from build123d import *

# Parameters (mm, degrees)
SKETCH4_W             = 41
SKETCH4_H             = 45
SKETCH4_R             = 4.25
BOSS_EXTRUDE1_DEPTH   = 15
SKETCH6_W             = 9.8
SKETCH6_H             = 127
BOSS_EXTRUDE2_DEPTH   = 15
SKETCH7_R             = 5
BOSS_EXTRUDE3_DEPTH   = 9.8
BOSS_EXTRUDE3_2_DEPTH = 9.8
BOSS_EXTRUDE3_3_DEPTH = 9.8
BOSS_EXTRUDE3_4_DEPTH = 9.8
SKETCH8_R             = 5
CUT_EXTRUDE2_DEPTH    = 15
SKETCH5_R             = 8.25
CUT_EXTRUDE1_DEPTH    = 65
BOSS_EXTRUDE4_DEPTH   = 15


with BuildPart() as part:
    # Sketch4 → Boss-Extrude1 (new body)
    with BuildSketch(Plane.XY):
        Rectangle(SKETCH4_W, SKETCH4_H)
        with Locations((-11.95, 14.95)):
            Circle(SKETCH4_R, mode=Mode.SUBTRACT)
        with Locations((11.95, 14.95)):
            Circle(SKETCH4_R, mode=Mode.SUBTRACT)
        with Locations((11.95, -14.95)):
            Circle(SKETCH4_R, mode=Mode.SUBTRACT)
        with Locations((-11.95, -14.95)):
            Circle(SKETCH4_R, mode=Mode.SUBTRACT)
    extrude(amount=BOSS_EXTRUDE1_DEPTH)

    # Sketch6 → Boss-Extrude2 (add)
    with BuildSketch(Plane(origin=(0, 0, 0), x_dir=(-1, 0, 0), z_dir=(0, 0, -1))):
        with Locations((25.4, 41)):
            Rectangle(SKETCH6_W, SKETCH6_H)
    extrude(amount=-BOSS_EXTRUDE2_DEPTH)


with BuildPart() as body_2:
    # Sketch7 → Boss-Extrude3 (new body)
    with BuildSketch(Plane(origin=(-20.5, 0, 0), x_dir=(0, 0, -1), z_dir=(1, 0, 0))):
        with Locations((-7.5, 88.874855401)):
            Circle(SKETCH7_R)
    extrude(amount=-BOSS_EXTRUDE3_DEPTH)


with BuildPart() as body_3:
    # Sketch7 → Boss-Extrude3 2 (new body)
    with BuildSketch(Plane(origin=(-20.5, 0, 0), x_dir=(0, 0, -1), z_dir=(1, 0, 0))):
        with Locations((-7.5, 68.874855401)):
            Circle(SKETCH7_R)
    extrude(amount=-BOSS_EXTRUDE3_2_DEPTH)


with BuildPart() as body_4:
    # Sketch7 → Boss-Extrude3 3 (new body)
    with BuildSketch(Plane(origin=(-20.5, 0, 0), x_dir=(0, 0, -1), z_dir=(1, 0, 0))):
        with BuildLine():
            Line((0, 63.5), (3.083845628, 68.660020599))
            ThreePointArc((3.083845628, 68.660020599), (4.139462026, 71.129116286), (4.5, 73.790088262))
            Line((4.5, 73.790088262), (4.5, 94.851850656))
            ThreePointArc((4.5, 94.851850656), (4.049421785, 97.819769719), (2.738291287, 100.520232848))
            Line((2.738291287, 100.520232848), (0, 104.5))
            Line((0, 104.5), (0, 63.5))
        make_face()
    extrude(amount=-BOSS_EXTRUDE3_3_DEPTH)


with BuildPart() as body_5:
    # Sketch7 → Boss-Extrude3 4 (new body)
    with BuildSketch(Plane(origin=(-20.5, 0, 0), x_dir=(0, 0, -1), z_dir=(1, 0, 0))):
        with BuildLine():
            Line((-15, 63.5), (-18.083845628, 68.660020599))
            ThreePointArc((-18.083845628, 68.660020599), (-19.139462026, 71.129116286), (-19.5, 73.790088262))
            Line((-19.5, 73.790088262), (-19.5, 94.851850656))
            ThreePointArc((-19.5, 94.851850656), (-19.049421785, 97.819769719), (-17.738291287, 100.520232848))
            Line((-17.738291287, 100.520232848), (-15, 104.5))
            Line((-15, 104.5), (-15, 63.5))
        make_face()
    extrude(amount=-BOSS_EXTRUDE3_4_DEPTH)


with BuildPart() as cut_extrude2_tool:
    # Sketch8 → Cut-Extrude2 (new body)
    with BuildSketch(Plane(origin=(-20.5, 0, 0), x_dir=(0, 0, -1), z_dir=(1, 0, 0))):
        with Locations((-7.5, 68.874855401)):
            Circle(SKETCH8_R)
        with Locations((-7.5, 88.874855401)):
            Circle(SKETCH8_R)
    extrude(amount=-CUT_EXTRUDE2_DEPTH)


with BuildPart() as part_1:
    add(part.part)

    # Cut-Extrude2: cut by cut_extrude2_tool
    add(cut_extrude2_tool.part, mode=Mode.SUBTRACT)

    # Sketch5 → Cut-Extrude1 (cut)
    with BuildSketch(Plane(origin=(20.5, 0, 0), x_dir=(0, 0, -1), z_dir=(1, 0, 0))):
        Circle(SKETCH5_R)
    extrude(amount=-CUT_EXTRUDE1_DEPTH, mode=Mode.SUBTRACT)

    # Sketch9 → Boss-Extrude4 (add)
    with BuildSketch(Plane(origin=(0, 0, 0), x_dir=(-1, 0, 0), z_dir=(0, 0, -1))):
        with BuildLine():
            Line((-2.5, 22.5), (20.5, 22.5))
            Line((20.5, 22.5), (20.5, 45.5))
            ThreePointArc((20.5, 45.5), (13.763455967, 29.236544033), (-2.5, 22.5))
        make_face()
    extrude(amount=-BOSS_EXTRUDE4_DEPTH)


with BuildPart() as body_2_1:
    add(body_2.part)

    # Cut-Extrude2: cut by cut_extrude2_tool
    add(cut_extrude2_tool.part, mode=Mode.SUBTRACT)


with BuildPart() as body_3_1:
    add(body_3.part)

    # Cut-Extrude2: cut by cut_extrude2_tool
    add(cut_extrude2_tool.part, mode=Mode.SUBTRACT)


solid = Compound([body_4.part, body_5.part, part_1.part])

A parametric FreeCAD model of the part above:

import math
import FreeCAD as App
import Part
import Sketcher

V = App.Vector


def add_polygon(sketch, points):
    """Adds a closed chain of lines whose ends are joined by coincident constraints."""
    first, n = sketch.GeometryCount, len(points)
    for a, b in zip(points, points[1:] + points[:1]):
        sketch.addGeometry(Part.LineSegment(App.Vector(*a, 0), App.Vector(*b, 0)), False)
    for i in range(n):
        sketch.addConstraint(Sketcher.Constraint("Coincident", first + i, 2, first + (i + 1) % n, 1))

doc = App.newDocument("Part")
body = doc.addObject("PartDesign::Body", "Body")

# Sketch on XY plane
sketch1 = doc.addObject("Sketcher::SketchObject", "Sketch")
body.addObject(sketch1)
sketch1.AttachmentSupport = (doc.XY_Plane, [""])
sketch1.MapMode = "FlatFace"
add_polygon(sketch1, [(-20.5, 22.5), (-20.5, -22.5), (20.5, -22.5), (20.5, 22.5)])  # lines 0-3
sketch1.addGeometry(Part.Circle(V(-11.9, -14.9, 0), V(0, 0, 1), 4.2), False)  # 4
sketch1.addGeometry(Part.Circle(V(11.9, -14.9, 0), V(0, 0, 1), 4.2), False)  # 5
sketch1.addGeometry(Part.Circle(V(-11.9, 14.9, 0), V(0, 0, 1), 4.2), False)  # 6
sketch1.addGeometry(Part.Circle(V(11.9, 14.9, 0), V(0, 0, 1), 4.2), False)  # 7
sketch1.addConstraint([
    Sketcher.Constraint("Vertical", 0),
    Sketcher.Constraint("Horizontal", 1),
    Sketcher.Constraint("Vertical", 2),
    Sketcher.Constraint("Horizontal", 3),
    Sketcher.Constraint("Equal", 4, 5),
    Sketcher.Constraint("Equal", 5, 6),
    Sketcher.Constraint("Equal", 6, 7),
    Sketcher.Constraint("Symmetric", 5, 3, 6, 3, -1, 1),
    Sketcher.Constraint("Symmetric", 4, 3, 7, 3, -1, 1),
    Sketcher.Constraint("Symmetric", 0, 2, 2, 2, -1, 1),
    Sketcher.Constraint("Symmetric", 4, 3, 5, 3, -2),
    Sketcher.Constraint("Diameter", 4, 8.5),
    Sketcher.Constraint("DistanceX", 1, 1, 1, 2, 41.0),
    Sketcher.Constraint("DistanceY", 0, 2, 0, 1, 45.0),
    Sketcher.Constraint("DistanceX", 4, 3, 5, 3, 23.9),
    Sketcher.Constraint("DistanceY", 4, 3, 6, 3, 29.9),
])
pad1 = doc.addObject("PartDesign::Pad", "Pad")
body.addObject(pad1)
pad1.Profile = sketch1
pad1.Length = 15

# Sketch on XY plane
sketch2 = doc.addObject("Sketcher::SketchObject", "Sketch001")
body.addObject(sketch2)
sketch2.AttachmentSupport = (doc.XY_Plane, [""])
sketch2.MapMode = "FlatFace"
add_polygon(sketch2, [(-20, 104), (-20, -22), (-30, -22), (-30, 104)])  # lines 0-3
sketch2.addConstraint([
    Sketcher.Constraint("Vertical", 0),
    Sketcher.Constraint("Horizontal", 1),
    Sketcher.Constraint("Vertical", 2),
    Sketcher.Constraint("Horizontal", 3),
    Sketcher.Constraint("DistanceY", 0, 2, 0, 1, 127.0),
    Sketcher.Constraint("DistanceX", 1, 2, 1, 1, 9.8),
    Sketcher.Constraint("DistanceX", 0, 2, -1, 1, 20.5),
    Sketcher.Constraint("DistanceY", 0, 2, -1, 1, 22.5),
])
pad2 = doc.addObject("PartDesign::Pad", "Pad001")
body.addObject(pad2)
pad2.Profile = sketch2
pad2.Length = 15
body2 = doc.addObject("PartDesign::Body", "Body001")

# Sketch on YZ plane
sketch3 = doc.addObject("Sketcher::SketchObject", "Sketch002")
body2.addObject(sketch3)
sketch3.AttachmentSupport = (doc.getObject("YZ_Plane001"), [""])
sketch3.MapMode = "FlatFace"
sketch3.AttachmentOffset = App.Placement(V(0, 0, -20.5), App.Rotation())
sketch3.addGeometry(Part.Circle(V(89, 8, 0), V(0, 0, 1), 5), False)
sketch3.addConstraint([
    Sketcher.Constraint("Diameter", 0, 10.0),
    Sketcher.Constraint("DistanceY", -1, 1, 0, 3, 7.5),
    Sketcher.Constraint("DistanceX", -1, 1, 0, 3, 88.874855),
])
pad3 = doc.addObject("PartDesign::Pad", "Pad002")
body2.addObject(pad3)
pad3.Profile = sketch3
pad3.Length = 9.8
pad3.Reversed = True
body3 = doc.addObject("PartDesign::Body", "Body002")

# Sketch on YZ plane
sketch4 = doc.addObject("Sketcher::SketchObject", "Sketch003")
body3.addObject(sketch4)
sketch4.AttachmentSupport = (doc.getObject("YZ_Plane002"), [""])
sketch4.MapMode = "FlatFace"
sketch4.AttachmentOffset = App.Placement(V(0, 0, -20.5), App.Rotation())
sketch4.addGeometry(Part.Circle(V(69, 8, 0), V(0, 0, 1), 5), False)
sketch4.addConstraint([
    Sketcher.Constraint("Diameter", 0, 10.0),
    Sketcher.Constraint("DistanceY", -1, 1, 0, 3, 7.5),
    Sketcher.Constraint("DistanceX", -1, 1, 0, 3, 68.874855),
])
pad4 = doc.addObject("PartDesign::Pad", "Pad003")
body3.addObject(pad4)
pad4.Profile = sketch4
pad4.Length = 9.8
pad4.Reversed = True
body4 = doc.addObject("PartDesign::Body", "Body003")

# Sketch on YZ plane
sketch5 = doc.addObject("Sketcher::SketchObject", "Sketch004")
body4.addObject(sketch5)
sketch5.AttachmentSupport = (doc.getObject("YZ_Plane003"), [""])
sketch5.MapMode = "FlatFace"
sketch5.AttachmentOffset = App.Placement(V(0, 0, -20.5), App.Rotation())
sketch5.addGeometry([
    Part.LineSegment(V(63.5, 0, 0), V(68.7, -3.1, 0)),  # 0
    Part.ArcOfCircle(Part.Circle(V(73.8, 5.5, 0), V(0, 0, 1), 10), math.radians(-121), math.radians(-90)),  # 1
    Part.LineSegment(V(73.8, -4.5, 0), V(94.9, -4.5, 0)),  # 2
    Part.ArcOfCircle(Part.Circle(V(94.9, 5.5, 0), V(0, 0, 1), 10), math.radians(-90), math.radians(-55)),  # 3
    Part.LineSegment(V(100.5, -2.7, 0), V(104.5, 0, 0)),  # 4
    Part.LineSegment(V(104.5, 0, 0), V(63.5, 0, 0)),  # 5
], False)
sketch5.addConstraint([
    Sketcher.Constraint("Tangent", 0, 2, 1, 1),
    Sketcher.Constraint("Tangent", 1, 2, 2, 1),
    Sketcher.Constraint("Tangent", 2, 2, 3, 1),
    Sketcher.Constraint("Tangent", 3, 2, 4, 1),
    Sketcher.Constraint("Coincident", 4, 2, 5, 1),
    Sketcher.Constraint("Coincident", 5, 2, 0, 1),
    Sketcher.Constraint("Horizontal", 2),
    Sketcher.Constraint("Horizontal", 5),
    Sketcher.Constraint("Equal", 1, 3),
    Sketcher.Constraint("PointOnObject", 4, 2, -1),
    Sketcher.Constraint("Radius", 1, 10.0),
    Sketcher.Constraint("DistanceX", 5, 2, 5, 1, 41.0),
    Sketcher.Constraint("DistanceY", -1, 1, 1, 3, 5.5),
    Sketcher.Constraint("DistanceX", -1, 1, 4, 2, 104.5),
    Sketcher.Constraint("DistanceX", 2, 1, 2, 2, 21.061762),
    Sketcher.Constraint("DistanceX", -1, 1, 1, 3, 73.790088),
])
pad5 = doc.addObject("PartDesign::Pad", "Pad004")
body4.addObject(pad5)
pad5.Profile = sketch5
pad5.Length = 9.8
pad5.Reversed = True
body5 = doc.addObject("PartDesign::Body", "Body004")

# Sketch on YZ plane
sketch6 = doc.addObject("Sketcher::SketchObject", "Sketch005")
body5.addObject(sketch6)
sketch6.AttachmentSupport = (doc.getObject("YZ_Plane004"), [""])
sketch6.MapMode = "FlatFace"
sketch6.AttachmentOffset = App.Placement(V(0, 0, -20.5), App.Rotation())
sketch6.addGeometry([
    Part.LineSegment(V(68.7, 18.1, 0), V(63.5, 15, 0)),  # 0
    Part.LineSegment(V(63.5, 15, 0), V(104.5, 15, 0)),  # 1
    Part.LineSegment(V(104.5, 15, 0), V(100.5, 17.7, 0)),  # 2
    Part.ArcOfCircle(Part.Circle(V(94.9, 9.5, 0), V(0, 0, 1), 10), math.radians(55), math.radians(90)),  # 3
    Part.LineSegment(V(94.9, 19.5, 0), V(73.8, 19.5, 0)),  # 4
    Part.ArcOfCircle(Part.Circle(V(73.8, 9.5, 0), V(0, 0, 1), 10), math.radians(90), math.radians(121)),  # 5
], False)
sketch6.addConstraint([
    Sketcher.Constraint("Coincident", 0, 2, 1, 1),
    Sketcher.Constraint("Coincident", 1, 2, 2, 1),
    Sketcher.Constraint("Tangent", 2, 2, 3, 1),
    Sketcher.Constraint("Tangent", 3, 2, 4, 1),
    Sketcher.Constraint("Tangent", 4, 2, 5, 1),
    Sketcher.Constraint("Tangent", 5, 2, 0, 1),
    Sketcher.Constraint("Horizontal", 1),
    Sketcher.Constraint("Horizontal", 4),
    Sketcher.Constraint("Equal", 3, 5),
    Sketcher.Constraint("Radius", 3, 10.0),
    Sketcher.Constraint("DistanceX", 1, 1, 1, 2, 41.0),
    Sketcher.Constraint("DistanceY", -1, 1, 0, 2, 15.0),
    Sketcher.Constraint("DistanceY", -1, 1, 3, 3, 9.5),
    Sketcher.Constraint("DistanceX", -1, 1, 0, 2, 63.5),
    Sketcher.Constraint("DistanceX", 4, 2, 4, 1, 21.061762),
    Sketcher.Constraint("DistanceX", -1, 1, 3, 3, 94.851851),
])
pad6 = doc.addObject("PartDesign::Pad", "Pad005")
body5.addObject(pad6)
pad6.Profile = sketch6
pad6.Length = 9.8
pad6.Reversed = True
body6 = doc.addObject("PartDesign::Body", "Body005")
body6.AllowCompound = True

# Sketch on YZ plane
sketch7 = doc.addObject("Sketcher::SketchObject", "Sketch006")
body6.addObject(sketch7)
sketch7.AttachmentSupport = (doc.getObject("YZ_Plane005"), [""])
sketch7.MapMode = "FlatFace"
sketch7.AttachmentOffset = App.Placement(V(0, 0, -20.5), App.Rotation())
sketch7.addGeometry([
    Part.Circle(V(69, 8, 0), V(0, 0, 1), 5),
    Part.Circle(V(89, 8, 0), V(0, 0, 1), 5),
], False)
sketch7.addConstraint([
    Sketcher.Constraint("Equal", 0, 1),
    Sketcher.Constraint("Horizontal", 0, 3, 1, 3),
    Sketcher.Constraint("Diameter", 0, 10.0),
    Sketcher.Constraint("DistanceX", 0, 3, 1, 3, 20.0),
    Sketcher.Constraint("DistanceY", -1, 1, 0, 3, 7.5),
    Sketcher.Constraint("DistanceX", -1, 1, 0, 3, 68.874855),
])
pad7 = doc.addObject("PartDesign::Pad", "Pad006")
body6.addObject(pad7)
pad7.Profile = sketch7
pad7.Length = 15
pad7.Reversed = True
doc.recompute()

body7 = doc.addObject("PartDesign::Body", "Body006")
body7.BaseFeature = body6
boolean = doc.addObject("PartDesign::Boolean", "Boolean")
body.addObject(boolean)
boolean.Type = "Cut"
boolean.addObjects([body7])
doc.recompute()

# Sketch on YZ plane
sketch8 = doc.addObject("Sketcher::SketchObject", "Sketch007")
body.addObject(sketch8)
sketch8.AttachmentSupport = (doc.YZ_Plane, [""])
sketch8.MapMode = "FlatFace"
sketch8.AttachmentOffset = App.Placement(V(0, 0, 20.5), App.Rotation())
sketch8.addGeometry(Part.Circle(V(0, 0, 0), V(0, 0, 1), 8), False)
sketch8.addConstraint([
    Sketcher.Constraint("Coincident", 0, 3, -1, 1),
    Sketcher.Constraint("Diameter", 0, 16.5),
])
pocket1 = doc.addObject("PartDesign::Pocket", "Pocket")
body.addObject(pocket1)
pocket1.Profile = sketch8
pocket1.Length = 65

# Sketch on XY plane
sketch9 = doc.addObject("Sketcher::SketchObject", "Sketch008")
body.addObject(sketch9)
sketch9.AttachmentSupport = (doc.XY_Plane, [""])
sketch9.MapMode = "FlatFace"
sketch9.addGeometry([
    Part.LineSegment(V(2, 22, 0), V(-20, 22, 0)),
    Part.LineSegment(V(-20, 22, 0), V(-20, 46, 0)),
    Part.ArcOfCircle(Part.Circle(V(3, 46, 0), V(0, 0, 1), 23), math.radians(-180), math.radians(-90)),
], False)
sketch9.addConstraint([
    Sketcher.Constraint("Coincident", 0, 2, 1, 1),
    Sketcher.Constraint("Tangent", 1, 2, 2, 1),
    Sketcher.Constraint("Tangent", 2, 2, 0, 1),
    Sketcher.Constraint("Horizontal", 0),
    Sketcher.Constraint("Vertical", 1),
    Sketcher.Constraint("Radius", 2, 23.0),
    Sketcher.Constraint("DistanceX", -1, 1, 2, 3, 2.5),
    Sketcher.Constraint("DistanceY", -1, 1, 2, 3, 45.5),
])
pad8 = doc.addObject("PartDesign::Pad", "Pad007")
body.addObject(pad8)
pad8.Profile = sketch9
pad8.Length = 15
doc.recompute()

body8 = doc.addObject("PartDesign::Body", "Body007")
body8.BaseFeature = body6
boolean2 = doc.addObject("PartDesign::Boolean", "Boolean001")
body2.addObject(boolean2)
boolean2.Type = "Cut"
boolean2.addObjects([body8])
doc.recompute()

boolean3 = doc.addObject("PartDesign::Boolean", "Boolean002")
body3.addObject(boolean3)
boolean3.Type = "Cut"
boolean3.addObjects([body6])

doc.recompute()
